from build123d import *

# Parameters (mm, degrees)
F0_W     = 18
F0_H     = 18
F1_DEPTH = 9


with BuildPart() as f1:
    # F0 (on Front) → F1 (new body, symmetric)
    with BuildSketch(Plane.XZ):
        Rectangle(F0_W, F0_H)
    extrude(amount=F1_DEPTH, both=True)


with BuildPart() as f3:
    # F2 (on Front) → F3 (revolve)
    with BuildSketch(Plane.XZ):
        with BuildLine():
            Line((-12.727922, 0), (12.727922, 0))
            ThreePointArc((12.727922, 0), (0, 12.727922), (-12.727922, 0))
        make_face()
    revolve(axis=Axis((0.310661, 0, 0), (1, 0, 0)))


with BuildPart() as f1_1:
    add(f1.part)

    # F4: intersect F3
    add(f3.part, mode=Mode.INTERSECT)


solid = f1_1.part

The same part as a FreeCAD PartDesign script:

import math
import FreeCAD as App
import Part
import Sketcher
from FreeCAD import Vector
Q = App.Units.Quantity


def add_polygon(sketch, points):
    """Adds a closed chain of lines whose ends are joined by coincident constraints."""
    first, n = sketch.GeometryCount, len(points)
    for a, b in zip(points, points[1:] + points[:1]):
        sketch.addGeometry(Part.LineSegment(App.Vector(*a, 0), App.Vector(*b, 0)), False)
    for i in range(n):
        sketch.addConstraint(Sketcher.Constraint("Coincident", first + i, 2, first + (i + 1) % n, 1))

doc = App.newDocument("Part")
body = doc.addObject("PartDesign::Body", "Body")

# Sketch on XZ plane
sketch1 = body.newObject("Sketcher::SketchObject", "Sketch")
sketch1.AttachmentSupport = (doc.getObject("XZ_Plane"), [""])
sketch1.MapMode = "FlatFace"
add_polygon(sketch1, [(-9, 9), (-9, -9), (9, -9), (9, 9)])  # lines 0-3
sketch1.addConstraint([
    Sketcher.Constraint("Vertical", 0),
    Sketcher.Constraint("Horizontal", 1),
    Sketcher.Constraint("Vertical", 2),
    Sketcher.Constraint("Horizontal", 3),
    Sketcher.Constraint("Symmetric", 0, 2, 2, 2, -1, 1),
    Sketcher.Constraint("Equal", 3, 0),
    Sketcher.Constraint("DistanceX", 1, 1, 1, 2, Q("18 mm")),
])
pad1 = body.newObject("PartDesign::Pad", "Pad")
pad1.Profile = sketch1
pad1.Length = 18
pad1.Midplane = True
body2 = doc.addObject("PartDesign::Body", "Body001")

# Sketch on XZ plane
sketch2 = body2.newObject("Sketcher::SketchObject", "Sketch001")
sketch2.AttachmentSupport = (doc.getObject("XZ_Plane001"), [""])
sketch2.MapMode = "FlatFace"
sketch2.addGeometry([
    Part.LineSegment(Vector(-13, 0, 0), Vector(13, 0, 0)),
    Part.ArcOfCircle(Part.Circle(Vector(0, 0, 0), Vector(0, 0, 1), 13), math.radians(0), math.radians(180)),
], False)
sketch2.addConstraint([
    Sketcher.Constraint("Coincident", 0, 1, 1, 2),
    Sketcher.Constraint("Coincident", 1, 1, 0, 2),
    Sketcher.Constraint("Horizontal", 0),
    Sketcher.Constraint("Coincident", 1, 3, -1, 1),
    Sketcher.Constraint("PointOnObject", 0, 1, -1),
    Sketcher.Constraint("Radius", 1, Q("12.727922 mm")),
])
revolution = body2.newObject("PartDesign::Revolution", "Revolution")
revolution.Profile = sketch2
revolution.ReferenceAxis = (sketch2, ["H_Axis"])
revolution.Angle = 360
doc.recompute()

boolean = body.newObject("PartDesign::Boolean", "Boolean")
boolean.Type = "Common"
boolean.addObjects([body2])

doc.recompute()
